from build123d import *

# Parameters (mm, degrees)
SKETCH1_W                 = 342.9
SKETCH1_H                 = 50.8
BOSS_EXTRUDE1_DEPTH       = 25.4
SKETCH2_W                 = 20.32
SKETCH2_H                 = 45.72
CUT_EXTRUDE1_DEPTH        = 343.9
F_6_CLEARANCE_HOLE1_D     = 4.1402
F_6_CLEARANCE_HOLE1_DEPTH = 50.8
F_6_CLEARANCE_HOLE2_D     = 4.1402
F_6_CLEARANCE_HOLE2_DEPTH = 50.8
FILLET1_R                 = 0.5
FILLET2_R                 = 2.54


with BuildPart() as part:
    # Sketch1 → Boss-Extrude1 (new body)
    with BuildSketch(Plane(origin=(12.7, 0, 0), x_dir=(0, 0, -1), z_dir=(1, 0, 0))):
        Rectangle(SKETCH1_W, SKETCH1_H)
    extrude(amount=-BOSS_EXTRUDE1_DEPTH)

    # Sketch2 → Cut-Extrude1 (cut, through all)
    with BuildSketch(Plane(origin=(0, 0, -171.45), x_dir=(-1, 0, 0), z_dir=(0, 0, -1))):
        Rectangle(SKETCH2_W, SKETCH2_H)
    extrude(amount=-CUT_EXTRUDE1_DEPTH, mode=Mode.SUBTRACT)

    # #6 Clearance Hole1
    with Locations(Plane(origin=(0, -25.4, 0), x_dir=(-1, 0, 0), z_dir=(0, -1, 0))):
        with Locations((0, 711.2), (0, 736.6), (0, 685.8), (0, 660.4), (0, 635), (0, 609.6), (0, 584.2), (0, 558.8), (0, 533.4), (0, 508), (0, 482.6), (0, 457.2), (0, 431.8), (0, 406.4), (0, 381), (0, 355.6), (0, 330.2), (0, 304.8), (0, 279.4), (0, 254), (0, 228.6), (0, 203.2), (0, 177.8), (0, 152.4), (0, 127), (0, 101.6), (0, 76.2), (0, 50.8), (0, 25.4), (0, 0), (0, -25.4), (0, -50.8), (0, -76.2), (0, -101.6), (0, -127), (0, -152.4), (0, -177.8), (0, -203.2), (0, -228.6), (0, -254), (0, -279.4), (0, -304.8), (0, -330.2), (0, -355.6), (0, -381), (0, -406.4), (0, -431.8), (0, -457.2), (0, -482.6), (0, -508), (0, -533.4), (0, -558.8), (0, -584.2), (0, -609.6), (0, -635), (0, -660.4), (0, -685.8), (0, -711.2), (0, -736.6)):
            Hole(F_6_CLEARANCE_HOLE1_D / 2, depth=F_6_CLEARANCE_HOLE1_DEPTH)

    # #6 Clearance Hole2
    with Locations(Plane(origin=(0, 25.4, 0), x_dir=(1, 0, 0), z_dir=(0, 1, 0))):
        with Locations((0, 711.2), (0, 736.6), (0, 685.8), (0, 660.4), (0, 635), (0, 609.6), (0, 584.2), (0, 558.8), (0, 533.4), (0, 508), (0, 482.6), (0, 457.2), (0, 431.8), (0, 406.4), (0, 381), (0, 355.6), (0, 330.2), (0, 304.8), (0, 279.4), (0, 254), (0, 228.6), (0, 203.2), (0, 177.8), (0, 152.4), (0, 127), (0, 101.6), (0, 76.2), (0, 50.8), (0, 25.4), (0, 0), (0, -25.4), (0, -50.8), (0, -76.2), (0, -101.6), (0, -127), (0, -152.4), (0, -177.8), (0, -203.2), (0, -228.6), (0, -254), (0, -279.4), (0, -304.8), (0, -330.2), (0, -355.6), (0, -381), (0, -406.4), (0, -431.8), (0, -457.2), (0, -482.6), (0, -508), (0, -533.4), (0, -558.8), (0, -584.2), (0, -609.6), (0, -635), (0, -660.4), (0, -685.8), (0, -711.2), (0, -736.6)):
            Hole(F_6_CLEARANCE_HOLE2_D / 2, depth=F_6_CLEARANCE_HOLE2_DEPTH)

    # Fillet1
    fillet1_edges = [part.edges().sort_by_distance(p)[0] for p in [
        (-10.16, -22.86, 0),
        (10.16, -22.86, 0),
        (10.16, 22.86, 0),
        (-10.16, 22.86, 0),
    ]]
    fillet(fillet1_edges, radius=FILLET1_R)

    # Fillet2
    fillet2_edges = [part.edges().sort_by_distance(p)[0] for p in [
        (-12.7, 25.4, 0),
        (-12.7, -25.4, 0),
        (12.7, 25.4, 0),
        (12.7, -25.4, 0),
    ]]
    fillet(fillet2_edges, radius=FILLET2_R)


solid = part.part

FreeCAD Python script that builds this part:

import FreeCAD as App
import Part
import Sketcher

V = App.Vector
Q = App.Units.Quantity


def edges_at(feature, points):
    """Names of the edges that pass closest to the given points."""
    edges = feature.Shape.Edges
    near = lambda p: min(range(len(edges)), key=lambda i: edges[i].distToShape(Part.Vertex(*p))[0])
    return sorted({f"Edge{near(p) + 1}" for p in points})


def add_polygon(sketch, points):
    """Adds a closed chain of lines whose ends are joined by coincident constraints."""
    first, n = sketch.GeometryCount, len(points)
    for a, b in zip(points, points[1:] + points[:1]):
        sketch.addGeometry(Part.LineSegment(App.Vector(*a, 0), App.Vector(*b, 0)), False)
    for i in range(n):
        sketch.addConstraint(Sketcher.Constraint("Coincident", first + i, 2, first + (i + 1) % n, 1))

doc = App.newDocument("Part")
body = doc.addObject("PartDesign::Body", "Body")

# Sketch on YZ plane
sketch1 = body.newObject("Sketcher::SketchObject", "Sketch")
sketch1.AttachmentSupport = (doc.getObject("YZ_Plane"), [""])
sketch1.MapMode = "FlatFace"
sketch1.AttachmentOffset = App.Placement(V(0, 0, 0.5 * 25.4), App.Rotation())
add_polygon(sketch1, [(25, 171), (-25, 171), (-25, -171), (25, -171)])  # lines 0-3
sketch1.addConstraint([
    Sketcher.Constraint("Horizontal", 0),
    Sketcher.Constraint("Vertical", 1),
    Sketcher.Constraint("Horizontal", 2),
    Sketcher.Constraint("Vertical", 3),
    Sketcher.Constraint("Symmetric", 0, 2, 2, 2, -1, 1),
    Sketcher.Constraint("DistanceX", 0, 2, 0, 1, Q("2 in")),
    Sketcher.Constraint("DistanceY", 1, 2, 1, 1, Q("13.5 in")),
])
pad1 = body.newObject("PartDesign::Pad", "Pad")
pad1.Profile = sketch1
pad1.Length = Q("1 in")
pad1.Reversed = True

# Sketch on XY plane
sketch2 = body.newObject("Sketcher::SketchObject", "Sketch001")
sketch2.AttachmentSupport = (doc.getObject("XY_Plane"), [""])
sketch2.MapMode = "FlatFace"
sketch2.AttachmentOffset = App.Placement(V(0, 0, -6.75 * 25.4), App.Rotation())
add_polygon(sketch2, [(10, 23), (10, -23), (-10, -23), (-10, 23)])  # lines 0-3
sketch2.addConstraint([
    Sketcher.Constraint("Vertical", 0),
    Sketcher.Constraint("Horizontal", 1),
    Sketcher.Constraint("Vertical", 2),
    Sketcher.Constraint("Horizontal", 3),
    Sketcher.Constraint("Symmetric", 0, 2, 2, 2, -1, 1),
    Sketcher.Constraint("DistanceX", 1, 2, 1, 1, Q("0.8 in")),
    Sketcher.Constraint("DistanceY", 0, 2, 0, 1, Q("1.8 in")),
])
pocket1 = body.newObject("PartDesign::Pocket", "Pocket")
pocket1.Profile = sketch2
pocket1.Type = "ThroughAll"
pocket1.Reversed = True

# Sketch on XZ plane
sketch3 = body.newObject("Sketcher::SketchObject", "Sketch002")
sketch3.AttachmentSupport = (doc.getObject("XZ_Plane"), [""])
sketch3.MapMode = "FlatFace"
sketch3.AttachmentOffset = App.Placement(V(0, 0, 1 * 25.4), App.Rotation())
sketch3.addGeometry([
    Part.Circle(V(0, -711.2, 0), V(0, 0, 1), 2.1),  # 0
    Part.Circle(V(0, -736.6, 0), V(0, 0, 1), 2.1),  # 1
    Part.Circle(V(0, -685.8, 0), V(0, 0, 1), 2.1),  # 2
    Part.Circle(V(0, -660.4, 0), V(0, 0, 1), 2.1),  # 3
    Part.Circle(V(0, -635, 0), V(0, 0, 1), 2.1),  # 4
    Part.Circle(V(0, -609.6, 0), V(0, 0, 1), 2.1),  # 5
    Part.Circle(V(0, -584.2, 0), V(0, 0, 1), 2.1),  # 6
    Part.Circle(V(0, -558.8, 0), V(0, 0, 1), 2.1),  # 7
    Part.Circle(V(0, -533.4, 0), V(0, 0, 1), 2.1),  # 8
    Part.Circle(V(0, -508, 0), V(0, 0, 1), 2.1),  # 9
    Part.Circle(V(0, -482.6, 0), V(0, 0, 1), 2.1),  # 10
    Part.Circle(V(0, -457.2, 0), V(0, 0, 1), 2.1),  # 11
    Part.Circle(V(0, -431.8, 0), V(0, 0, 1), 2.1),  # 12
    Part.Circle(V(0, -406.4, 0), V(0, 0, 1), 2.1),  # 13
    Part.Circle(V(0, -381, 0), V(0, 0, 1), 2.1),  # 14
    Part.Circle(V(0, -355.6, 0), V(0, 0, 1), 2.1),  # 15
    Part.Circle(V(0, -330.2, 0), V(0, 0, 1), 2.1),  # 16
    Part.Circle(V(0, -304.8, 0), V(0, 0, 1), 2.1),  # 17
    Part.Circle(V(0, -279.4, 0), V(0, 0, 1), 2.1),  # 18
    Part.Circle(V(0, -254, 0), V(0, 0, 1), 2.1),  # 19
    Part.Circle(V(0, -228.6, 0), V(0, 0, 1), 2.1),  # 20
    Part.Circle(V(0, -203.2, 0), V(0, 0, 1), 2.1),  # 21
    Part.Circle(V(0, -177.8, 0), V(0, 0, 1), 2.1),  # 22
    Part.Circle(V(0, -152.4, 0), V(0, 0, 1), 2.1),  # 23
    Part.Circle(V(0, -127, 0), V(0, 0, 1), 2.1),  # 24
    Part.Circle(V(0, -101.6, 0), V(0, 0, 1), 2.1),  # 25
    Part.Circle(V(0, -76.2, 0), V(0, 0, 1), 2.1),  # 26
    Part.Circle(V(0, -50.8, 0), V(0, 0, 1), 2.1),  # 27
    Part.Circle(V(0, -25.4, 0), V(0, 0, 1), 2.1),  # 28
    Part.Circle(V(0, 0, 0), V(0, 0, 1), 2.1),  # 29
    Part.Circle(V(0, 25.4, 0), V(0, 0, 1), 2.1),  # 30
    Part.Circle(V(0, 50.8, 0), V(0, 0, 1), 2.1),  # 31
    Part.Circle(V(0, 76.2, 0), V(0, 0, 1), 2.1),  # 32
    Part.Circle(V(0, 101.6, 0), V(0, 0, 1), 2.1),  # 33
    Part.Circle(V(0, 127, 0), V(0, 0, 1), 2.1),  # 34
    Part.Circle(V(0, 152.4, 0), V(0, 0, 1), 2.1),  # 35
    Part.Circle(V(0, 177.8, 0), V(0, 0, 1), 2.1),  # 36
    Part.Circle(V(0, 203.2, 0), V(0, 0, 1), 2.1),  # 37
    Part.Circle(V(0, 228.6, 0), V(0, 0, 1), 2.1),  # 38
    Part.Circle(V(0, 254, 0), V(0, 0, 1), 2.1),  # 39
    Part.Circle(V(0, 279.4, 0), V(0, 0, 1), 2.1),  # 40
    Part.Circle(V(0, 304.8, 0), V(0, 0, 1), 2.1),  # 41
    Part.Circle(V(0, 330.2, 0), V(0, 0, 1), 2.1),  # 42
    Part.Circle(V(0, 355.6, 0), V(0, 0, 1), 2.1),  # 43
    Part.Circle(V(0, 381, 0), V(0, 0, 1), 2.1),  # 44
    Part.Circle(V(0, 406.4, 0), V(0, 0, 1), 2.1),  # 45
    Part.Circle(V(0, 431.8, 0), V(0, 0, 1), 2.1),  # 46
    Part.Circle(V(0, 457.2, 0), V(0, 0, 1), 2.1),  # 47
    Part.Circle(V(0, 482.6, 0), V(0, 0, 1), 2.1),  # 48
    Part.Circle(V(0, 508, 0), V(0, 0, 1), 2.1),  # 49
    Part.Circle(V(0, 533.4, 0), V(0, 0, 1), 2.1),  # 50
    Part.Circle(V(0, 558.8, 0), V(0, 0, 1), 2.1),  # 51
    Part.Circle(V(0, 584.2, 0), V(0, 0, 1), 2.1),  # 52
    Part.Circle(V(0, 609.6, 0), V(0, 0, 1), 2.1),  # 53
    Part.Circle(V(0, 635, 0), V(0, 0, 1), 2.1),  # 54
    Part.Circle(V(0, 660.4, 0), V(0, 0, 1), 2.1),  # 55
    Part.Circle(V(0, 685.8, 0), V(0, 0, 1), 2.1),  # 56
    Part.Circle(V(0, 711.2, 0), V(0, 0, 1), 2.1),  # 57
    Part.Circle(V(0, 736.6, 0), V(0, 0, 1), 2.1),  # 58
], False)
sketch3.addConstraint([
    Sketcher.Constraint("Coincident", 29, 3, -1, 1),
    Sketcher.Constraint("Equal", 0, 1),
    Sketcher.Constraint("Equal", 1, 2),
    Sketcher.Constraint("Equal", 2, 3),
    Sketcher.Constraint("Equal", 3, 4),
    Sketcher.Constraint("Equal", 4, 5),
    Sketcher.Constraint("Equal", 5, 6),
    Sketcher.Constraint("Equal", 6, 7),
    Sketcher.Constraint("Equal", 7, 8),
    Sketcher.Constraint("Equal", 8, 9),
    Sketcher.Constraint("Equal", 9, 10),
    Sketcher.Constraint("Equal", 10, 11),
    Sketcher.Constraint("Equal", 11, 12),
    Sketcher.Constraint("Equal", 12, 13),
    Sketcher.Constraint("Equal", 13, 14),
    Sketcher.Constraint("Equal", 14, 15),
    Sketcher.Constraint("Equal", 15, 16),
    Sketcher.Constraint("Equal", 16, 17),
    Sketcher.Constraint("Equal", 17, 18),
    Sketcher.Constraint("Equal", 18, 19),
    Sketcher.Constraint("Equal", 19, 20),
    Sketcher.Constraint("Equal", 20, 21),
    Sketcher.Constraint("Equal", 21, 22),
    Sketcher.Constraint("Equal", 22, 23),
    Sketcher.Constraint("Equal", 23, 24),
    Sketcher.Constraint("Equal", 24, 25),
    Sketcher.Constraint("Equal", 25, 26),
    Sketcher.Constraint("Equal", 26, 27),
    Sketcher.Constraint("Equal", 27, 28),
    Sketcher.Constraint("Equal", 28, 29),
    Sketcher.Constraint("Equal", 29, 30),
    Sketcher.Constraint("Equal", 30, 31),
    Sketcher.Constraint("Equal", 31, 32),
    Sketcher.Constraint("Equal", 32, 33),
    Sketcher.Constraint("Equal", 33, 34),
    Sketcher.Constraint("Equal", 34, 35),
    Sketcher.Constraint("Equal", 35, 36),
    Sketcher.Constraint("Equal", 36, 37),
    Sketcher.Constraint("Equal", 37, 38),
    Sketcher.Constraint("Equal", 38, 39),
    Sketcher.Constraint("Equal", 39, 40),
    Sketcher.Constraint("Equal", 40, 41),
    Sketcher.Constraint("Equal", 41, 42),
    Sketcher.Constraint("Equal", 42, 43),
    Sketcher.Constraint("Equal", 43, 44),
    Sketcher.Constraint("Equal", 44, 45),
    Sketcher.Constraint("Equal", 45, 46),
    Sketcher.Constraint("Equal", 46, 47),
    Sketcher.Constraint("Equal", 47, 48),
    Sketcher.Constraint("Equal", 48, 49),
    Sketcher.Constraint("Equal", 49, 50),
    Sketcher.Constraint("Equal", 50, 51),
    Sketcher.Constraint("Equal", 51, 52),
    Sketcher.Constraint("Equal", 52, 53),
    Sketcher.Constraint("Equal", 53, 54),
    Sketcher.Constraint("Equal", 54, 55),
    Sketcher.Constraint("Equal", 55, 56),
    Sketcher.Constraint("Equal", 56, 57),
    Sketcher.Constraint("Equal", 57, 58),
    Sketcher.Constraint("Symmetric", 28, 3, 30, 3, -1, 1),
    Sketcher.Constraint("Symmetric", 27, 3, 31, 3, -1, 1),
    Sketcher.Constraint("Symmetric", 26, 3, 32, 3, -1, 1),
    Sketcher.Constraint("Symmetric", 25, 3, 33, 3, -1, 1),
    Sketcher.Constraint("Symmetric", 24, 3, 34, 3, -1, 1),
    Sketcher.Constraint("Symmetric", 23, 3, 35, 3, -1, 1),
    Sketcher.Constraint("Symmetric", 22, 3, 36, 3, -1, 1),
    Sketcher.Constraint("Symmetric", 21, 3, 37, 3, -1, 1),
    Sketcher.Constraint("Symmetric", 20, 3, 38, 3, -1, 1),
    Sketcher.Constraint("Symmetric", 19, 3, 39, 3, -1, 1),
    Sketcher.Constraint("Symmetric", 18, 3, 40, 3, -1, 1),
    Sketcher.Constraint("Symmetric", 17, 3, 41, 3, -1, 1),
    Sketcher.Constraint("Symmetric", 16, 3, 42, 3, -1, 1),
    Sketcher.Constraint("Symmetric", 15, 3, 43, 3, -1, 1),
    Sketcher.Constraint("Symmetric", 14, 3, 44, 3, -1, 1),
    Sketcher.Constraint("Symmetric", 13, 3, 45, 3, -1, 1),
    Sketcher.Constraint("Symmetric", 12, 3, 46, 3, -1, 1),
    Sketcher.Constraint("Symmetric", 11, 3, 47, 3, -1, 1),
    Sketcher.Constraint("Symmetric", 10, 3, 48, 3, -1, 1),
    Sketcher.Constraint("Symmetric", 9, 3, 49, 3, -1, 1),
    Sketcher.Constraint("Symmetric", 8, 3, 50, 3, -1, 1),
    Sketcher.Constraint("Symmetric", 7, 3, 51, 3, -1, 1),
    Sketcher.Constraint("Symmetric", 6, 3, 52, 3, -1, 1),
    Sketcher.Constraint("Symmetric", 5, 3, 53, 3, -1, 1),
    Sketcher.Constraint("Symmetric", 4, 3, 54, 3, -1, 1),
    Sketcher.Constraint("Symmetric", 3, 3, 55, 3, -1, 1),
    Sketcher.Constraint("Symmetric", 2, 3, 56, 3, -1, 1),
    Sketcher.Constraint("Symmetric", 0, 3, 57, 3, -1, 1),
    Sketcher.Constraint("Symmetric", 1, 3, 58, 3, -1, 1),
    Sketcher.Constraint("PointOnObject", 0, 3, -2),
    Sketcher.Constraint("PointOnObject", 1, 3, -2),
    Sketcher.Constraint("PointOnObject", 2, 3, -2),
    Sketcher.Constraint("PointOnObject", 3, 3, -2),
    Sketcher.Constraint("PointOnObject", 4, 3, -2),
    Sketcher.Constraint("PointOnObject", 5, 3, -2),
    Sketcher.Constraint("PointOnObject", 6, 3, -2),
    Sketcher.Constraint("PointOnObject", 7, 3, -2),
    Sketcher.Constraint("PointOnObject", 8, 3, -2),
    Sketcher.Constraint("PointOnObject", 9, 3, -2),
    Sketcher.Constraint("PointOnObject", 10, 3, -2),
    Sketcher.Constraint("PointOnObject", 11, 3, -2),
    Sketcher.Constraint("PointOnObject", 12, 3, -2),
    Sketcher.Constraint("PointOnObject", 13, 3, -2),
    Sketcher.Constraint("PointOnObject", 14, 3, -2),
    Sketcher.Constraint("PointOnObject", 15, 3, -2),
    Sketcher.Constraint("PointOnObject", 16, 3, -2),
    Sketcher.Constraint("PointOnObject", 17, 3, -2),
    Sketcher.Constraint("PointOnObject", 18, 3, -2),
    Sketcher.Constraint("PointOnObject", 19, 3, -2),
    Sketcher.Constraint("PointOnObject", 20, 3, -2),
    Sketcher.Constraint("PointOnObject", 21, 3, -2),
    Sketcher.Constraint("PointOnObject", 22, 3, -2),
    Sketcher.Constraint("PointOnObject", 23, 3, -2),
    Sketcher.Constraint("PointOnObject", 24, 3, -2),
    Sketcher.Constraint("PointOnObject", 25, 3, -2),
    Sketcher.Constraint("PointOnObject", 26, 3, -2),
    Sketcher.Constraint("PointOnObject", 27, 3, -2),
    Sketcher.Constraint("PointOnObject", 28, 3, -2),
    Sketcher.Constraint("Diameter", 0, Q("0.163 in")),
    Sketcher.Constraint("DistanceY", 0, 3, -1, 1, Q("28 in")),
    Sketcher.Constraint("DistanceY", 1, 3, -1, 1, Q("29 in")),
    Sketcher.Constraint("DistanceY", 2, 3, -1, 1, Q("27 in")),
    Sketcher.Constraint("DistanceY", 3, 3, -1, 1, Q("26 in")),
    Sketcher.Constraint("DistanceY", 4, 3, -1, 1, Q("25 in")),
    Sketcher.Constraint("DistanceY", 5, 3, -1, 1, Q("24 in")),
    Sketcher.Constraint("DistanceY", 6, 3, -1, 1, Q("23 in")),
    Sketcher.Constraint("DistanceY", 7, 3, -1, 1, Q("22 in")),
    Sketcher.Constraint("DistanceY", 8, 3, -1, 1, Q("21 in")),
    Sketcher.Constraint("DistanceY", 9, 3, -1, 1, Q("20 in")),
    Sketcher.Constraint("DistanceY", 10, 3, -1, 1, Q("19 in")),
    Sketcher.Constraint("DistanceY", 11, 3, -1, 1, Q("18 in")),
    Sketcher.Constraint("DistanceY", 12, 3, -1, 1, Q("17 in")),
    Sketcher.Constraint("DistanceY", 13, 3, -1, 1, Q("16 in")),
    Sketcher.Constraint("DistanceY", 14, 3, -1, 1, Q("15 in")),
    Sketcher.Constraint("DistanceY", 15, 3, -1, 1, Q("14 in")),
    Sketcher.Constraint("DistanceY", 16, 3, -1, 1, Q("13 in")),
    Sketcher.Constraint("DistanceY", 17, 3, -1, 1, Q("12 in")),
    Sketcher.Constraint("DistanceY", 18, 3, -1, 1, Q("11 in")),
    Sketcher.Constraint("DistanceY", 19, 3, -1, 1, Q("10 in")),
    Sketcher.Constraint("DistanceY", 20, 3, -1, 1, Q("9 in")),
    Sketcher.Constraint("DistanceY", 21, 3, -1, 1, Q("8 in")),
    Sketcher.Constraint("DistanceY", 22, 3, -1, 1, Q("7 in")),
    Sketcher.Constraint("DistanceY", 23, 3, -1, 1, Q("6 in")),
    Sketcher.Constraint("DistanceY", 24, 3, -1, 1, Q("5 in")),
    Sketcher.Constraint("DistanceY", 25, 3, -1, 1, Q("4 in")),
    Sketcher.Constraint("DistanceY", 26, 3, -1, 1, Q("3 in")),
    Sketcher.Constraint("DistanceY", 27, 3, -1, 1, Q("2 in")),
    Sketcher.Constraint("DistanceY", 28, 3, -1, 1, Q("1 in")),
])
doc.recompute()
hole = body.newObject("PartDesign::Hole", "Hole")
hole.Profile = sketch3
hole.ThreadType = "None"
hole.Diameter = Q("0.163 in")
hole.DepthType = "Dimension"
hole.Depth = Q("2 in")
hole.DrillPoint = "Flat"

# Sketch on XZ plane
sketch4 = body.newObject("Sketcher::SketchObject", "Sketch003")
sketch4.AttachmentSupport = (doc.getObject("XZ_Plane"), [""])
sketch4.MapMode = "FlatFace"
sketch4.AttachmentOffset = App.Placement(V(0, 0, -1 * 25.4), App.Rotation())
sketch4.addGeometry([
    Part.Circle(V(0, -711.2, 0), V(0, 0, 1), 2.1),  # 0
    Part.Circle(V(0, -736.6, 0), V(0, 0, 1), 2.1),  # 1
    Part.Circle(V(0, -685.8, 0), V(0, 0, 1), 2.1),  # 2
    Part.Circle(V(0, -660.4, 0), V(0, 0, 1), 2.1),  # 3
    Part.Circle(V(0, -635, 0), V(0, 0, 1), 2.1),  # 4
    Part.Circle(V(0, -609.6, 0), V(0, 0, 1), 2.1),  # 5
    Part.Circle(V(0, -584.2, 0), V(0, 0, 1), 2.1),  # 6
    Part.Circle(V(0, -558.8, 0), V(0, 0, 1), 2.1),  # 7
    Part.Circle(V(0, -533.4, 0), V(0, 0, 1), 2.1),  # 8
    Part.Circle(V(0, -508, 0), V(0, 0, 1), 2.1),  # 9
    Part.Circle(V(0, -482.6, 0), V(0, 0, 1), 2.1),  # 10
    Part.Circle(V(0, -457.2, 0), V(0, 0, 1), 2.1),  # 11
    Part.Circle(V(0, -431.8, 0), V(0, 0, 1), 2.1),  # 12
    Part.Circle(V(0, -406.4, 0), V(0, 0, 1), 2.1),  # 13
    Part.Circle(V(0, -381, 0), V(0, 0, 1), 2.1),  # 14
    Part.Circle(V(0, -355.6, 0), V(0, 0, 1), 2.1),  # 15
    Part.Circle(V(0, -330.2, 0), V(0, 0, 1), 2.1),  # 16
    Part.Circle(V(0, -304.8, 0), V(0, 0, 1), 2.1),  # 17
    Part.Circle(V(0, -279.4, 0), V(0, 0, 1), 2.1),  # 18
    Part.Circle(V(0, -254, 0), V(0, 0, 1), 2.1),  # 19
    Part.Circle(V(0, -228.6, 0), V(0, 0, 1), 2.1),  # 20
    Part.Circle(V(0, -203.2, 0), V(0, 0, 1), 2.1),  # 21
    Part.Circle(V(0, -177.8, 0), V(0, 0, 1), 2.1),  # 22
    Part.Circle(V(0, -152.4, 0), V(0, 0, 1), 2.1),  # 23
    Part.Circle(V(0, -127, 0), V(0, 0, 1), 2.1),  # 24
    Part.Circle(V(0, -101.6, 0), V(0, 0, 1), 2.1),  # 25
    Part.Circle(V(0, -76.2, 0), V(0, 0, 1), 2.1),  # 26
    Part.Circle(V(0, -50.8, 0), V(0, 0, 1), 2.1),  # 27
    Part.Circle(V(0, -25.4, 0), V(0, 0, 1), 2.1),  # 28
    Part.Circle(V(0, 0, 0), V(0, 0, 1), 2.1),  # 29
    Part.Circle(V(0, 25.4, 0), V(0, 0, 1), 2.1),  # 30
    Part.Circle(V(0, 50.8, 0), V(0, 0, 1), 2.1),  # 31
    Part.Circle(V(0, 76.2, 0), V(0, 0, 1), 2.1),  # 32
    Part.Circle(V(0, 101.6, 0), V(0, 0, 1), 2.1),  # 33
    Part.Circle(V(0, 127, 0), V(0, 0, 1), 2.1),  # 34
    Part.Circle(V(0, 152.4, 0), V(0, 0, 1), 2.1),  # 35
    Part.Circle(V(0, 177.8, 0), V(0, 0, 1), 2.1),  # 36
    Part.Circle(V(0, 203.2, 0), V(0, 0, 1), 2.1),  # 37
    Part.Circle(V(0, 228.6, 0), V(0, 0, 1), 2.1),  # 38
    Part.Circle(V(0, 254, 0), V(0, 0, 1), 2.1),  # 39
    Part.Circle(V(0, 279.4, 0), V(0, 0, 1), 2.1),  # 40
    Part.Circle(V(0, 304.8, 0), V(0, 0, 1), 2.1),  # 41
    Part.Circle(V(0, 330.2, 0), V(0, 0, 1), 2.1),  # 42
    Part.Circle(V(0, 355.6, 0), V(0, 0, 1), 2.1),  # 43
    Part.Circle(V(0, 381, 0), V(0, 0, 1), 2.1),  # 44
    Part.Circle(V(0, 406.4, 0), V(0, 0, 1), 2.1),  # 45
    Part.Circle(V(0, 431.8, 0), V(0, 0, 1), 2.1),  # 46
    Part.Circle(V(0, 457.2, 0), V(0, 0, 1), 2.1),  # 47
    Part.Circle(V(0, 482.6, 0), V(0, 0, 1), 2.1),  # 48
    Part.Circle(V(0, 508, 0), V(0, 0, 1), 2.1),  # 49
    Part.Circle(V(0, 533.4, 0), V(0, 0, 1), 2.1),  # 50
    Part.Circle(V(0, 558.8, 0), V(0, 0, 1), 2.1),  # 51
    Part.Circle(V(0, 584.2, 0), V(0, 0, 1), 2.1),  # 52
    Part.Circle(V(0, 609.6, 0), V(0, 0, 1), 2.1),  # 53
    Part.Circle(V(0, 635, 0), V(0, 0, 1), 2.1),  # 54
    Part.Circle(V(0, 660.4, 0), V(0, 0, 1), 2.1),  # 55
    Part.Circle(V(0, 685.8, 0), V(0, 0, 1), 2.1),  # 56
    Part.Circle(V(0, 711.2, 0), V(0, 0, 1), 2.1),  # 57
    Part.Circle(V(0, 736.6, 0), V(0, 0, 1), 2.1),  # 58
], False)
sketch4.addConstraint([
    Sketcher.Constraint("Coincident", 29, 3, -1, 1),
    Sketcher.Constraint("Equal", 0, 1),
    Sketcher.Constraint("Equal", 1, 2),
    Sketcher.Constraint("Equal", 2, 3),
    Sketcher.Constraint("Equal", 3, 4),
    Sketcher.Constraint("Equal", 4, 5),
    Sketcher.Constraint("Equal", 5, 6),
    Sketcher.Constraint("Equal", 6, 7),
    Sketcher.Constraint("Equal", 7, 8),
    Sketcher.Constraint("Equal", 8, 9),
    Sketcher.Constraint("Equal", 9, 10),
    Sketcher.Constraint("Equal", 10, 11),
    Sketcher.Constraint("Equal", 11, 12),
    Sketcher.Constraint("Equal", 12, 13),
    Sketcher.Constraint("Equal", 13, 14),
    Sketcher.Constraint("Equal", 14, 15),
    Sketcher.Constraint("Equal", 15, 16),
    Sketcher.Constraint("Equal", 16, 17),
    Sketcher.Constraint("Equal", 17, 18),
    Sketcher.Constraint("Equal", 18, 19),
    Sketcher.Constraint("Equal", 19, 20),
    Sketcher.Constraint("Equal", 20, 21),
    Sketcher.Constraint("Equal", 21, 22),
    Sketcher.Constraint("Equal", 22, 23),
    Sketcher.Constraint("Equal", 23, 24),
    Sketcher.Constraint("Equal", 24, 25),
    Sketcher.Constraint("Equal", 25, 26),
    Sketcher.Constraint("Equal", 26, 27),
    Sketcher.Constraint("Equal", 27, 28),
    Sketcher.Constraint("Equal", 28, 29),
    Sketcher.Constraint("Equal", 29, 30),
    Sketcher.Constraint("Equal", 30, 31),
    Sketcher.Constraint("Equal", 31, 32),
    Sketcher.Constraint("Equal", 32, 33),
    Sketcher.Constraint("Equal", 33, 34),
    Sketcher.Constraint("Equal", 34, 35),
    Sketcher.Constraint("Equal", 35, 36),
    Sketcher.Constraint("Equal", 36, 37),
    Sketcher.Constraint("Equal", 37, 38),
    Sketcher.Constraint("Equal", 38, 39),
    Sketcher.Constraint("Equal", 39, 40),
    Sketcher.Constraint("Equal", 40, 41),
    Sketcher.Constraint("Equal", 41, 42),
    Sketcher.Constraint("Equal", 42, 43),
    Sketcher.Constraint("Equal", 43, 44),
    Sketcher.Constraint("Equal", 44, 45),
    Sketcher.Constraint("Equal", 45, 46),
    Sketcher.Constraint("Equal", 46, 47),
    Sketcher.Constraint("Equal", 47, 48),
    Sketcher.Constraint("Equal", 48, 49),
    Sketcher.Constraint("Equal", 49, 50),
    Sketcher.Constraint("Equal", 50, 51),
    Sketcher.Constraint("Equal", 51, 52),
    Sketcher.Constraint("Equal", 52, 53),
    Sketcher.Constraint("Equal", 53, 54),
    Sketcher.Constraint("Equal", 54, 55),
    Sketcher.Constraint("Equal", 55, 56),
    Sketcher.Constraint("Equal", 56, 57),
    Sketcher.Constraint("Equal", 57, 58),
    Sketcher.Constraint("Symmetric", 28, 3, 30, 3, -1, 1),
    Sketcher.Constraint("Symmetric", 27, 3, 31, 3, -1, 1),
    Sketcher.Constraint("Symmetric", 26, 3, 32, 3, -1, 1),
    Sketcher.Constraint("Symmetric", 25, 3, 33, 3, -1, 1),
    Sketcher.Constraint("Symmetric", 24, 3, 34, 3, -1, 1),
    Sketcher.Constraint("Symmetric", 23, 3, 35, 3, -1, 1),
    Sketcher.Constraint("Symmetric", 22, 3, 36, 3, -1, 1),
    Sketcher.Constraint("Symmetric", 21, 3, 37, 3, -1, 1),
    Sketcher.Constraint("Symmetric", 20, 3, 38, 3, -1, 1),
    Sketcher.Constraint("Symmetric", 19, 3, 39, 3, -1, 1),
    Sketcher.Constraint("Symmetric", 18, 3, 40, 3, -1, 1),
    Sketcher.Constraint("Symmetric", 17, 3, 41, 3, -1, 1),
    Sketcher.Constraint("Symmetric", 16, 3, 42, 3, -1, 1),
    Sketcher.Constraint("Symmetric", 15, 3, 43, 3, -1, 1),
    Sketcher.Constraint("Symmetric", 14, 3, 44, 3, -1, 1),
    Sketcher.Constraint("Symmetric", 13, 3, 45, 3, -1, 1),
    Sketcher.Constraint("Symmetric", 12, 3, 46, 3, -1, 1),
    Sketcher.Constraint("Symmetric", 11, 3, 47, 3, -1, 1),
    Sketcher.Constraint("Symmetric", 10, 3, 48, 3, -1, 1),
    Sketcher.Constraint("Symmetric", 9, 3, 49, 3, -1, 1),
    Sketcher.Constraint("Symmetric", 8, 3, 50, 3, -1, 1),
    Sketcher.Constraint("Symmetric", 7, 3, 51, 3, -1, 1),
    Sketcher.Constraint("Symmetric", 6, 3, 52, 3, -1, 1),
    Sketcher.Constraint("Symmetric", 5, 3, 53, 3, -1, 1),
    Sketcher.Constraint("Symmetric", 4, 3, 54, 3, -1, 1),
    Sketcher.Constraint("Symmetric", 3, 3, 55, 3, -1, 1),
    Sketcher.Constraint("Symmetric", 2, 3, 56, 3, -1, 1),
    Sketcher.Constraint("Symmetric", 0, 3, 57, 3, -1, 1),
    Sketcher.Constraint("Symmetric", 1, 3, 58, 3, -1, 1),
    Sketcher.Constraint("PointOnObject", 0, 3, -2),
    Sketcher.Constraint("PointOnObject", 1, 3, -2),
    Sketcher.Constraint("PointOnObject", 2, 3, -2),
    Sketcher.Constraint("PointOnObject", 3, 3, -2),
    Sketcher.Constraint("PointOnObject", 4, 3, -2),
    Sketcher.Constraint("PointOnObject", 5, 3, -2),
    Sketcher.Constraint("PointOnObject", 6, 3, -2),
    Sketcher.Constraint("PointOnObject", 7, 3, -2),
    Sketcher.Constraint("PointOnObject", 8, 3, -2),
    Sketcher.Constraint("PointOnObject", 9, 3, -2),
    Sketcher.Constraint("PointOnObject", 10, 3, -2),
    Sketcher.Constraint("PointOnObject", 11, 3, -2),
    Sketcher.Constraint("PointOnObject", 12, 3, -2),
    Sketcher.Constraint("PointOnObject", 13, 3, -2),
    Sketcher.Constraint("PointOnObject", 14, 3, -2),
    Sketcher.Constraint("PointOnObject", 15, 3, -2),
    Sketcher.Constraint("PointOnObject", 16, 3, -2),
    Sketcher.Constraint("PointOnObject", 17, 3, -2),
    Sketcher.Constraint("PointOnObject", 18, 3, -2),
    Sketcher.Constraint("PointOnObject", 19, 3, -2),
    Sketcher.Constraint("PointOnObject", 20, 3, -2),
    Sketcher.Constraint("PointOnObject", 21, 3, -2),
    Sketcher.Constraint("PointOnObject", 22, 3, -2),
    Sketcher.Constraint("PointOnObject", 23, 3, -2),
    Sketcher.Constraint("PointOnObject", 24, 3, -2),
    Sketcher.Constraint("PointOnObject", 25, 3, -2),
    Sketcher.Constraint("PointOnObject", 26, 3, -2),
    Sketcher.Constraint("PointOnObject", 27, 3, -2),
    Sketcher.Constraint("PointOnObject", 28, 3, -2),
    Sketcher.Constraint("Diameter", 0, Q("0.163 in")),
    Sketcher.Constraint("DistanceY", 0, 3, -1, 1, Q("28 in")),
    Sketcher.Constraint("DistanceY", 1, 3, -1, 1, Q("29 in")),
    Sketcher.Constraint("DistanceY", 2, 3, -1, 1, Q("27 in")),
    Sketcher.Constraint("DistanceY", 3, 3, -1, 1, Q("26 in")),
    Sketcher.Constraint("DistanceY", 4, 3, -1, 1, Q("25 in")),
    Sketcher.Constraint("DistanceY", 5, 3, -1, 1, Q("24 in")),
    Sketcher.Constraint("DistanceY", 6, 3, -1, 1, Q("23 in")),
    Sketcher.Constraint("DistanceY", 7, 3, -1, 1, Q("22 in")),
    Sketcher.Constraint("DistanceY", 8, 3, -1, 1, Q("21 in")),
    Sketcher.Constraint("DistanceY", 9, 3, -1, 1, Q("20 in")),
    Sketcher.Constraint("DistanceY", 10, 3, -1, 1, Q("19 in")),
    Sketcher.Constraint("DistanceY", 11, 3, -1, 1, Q("18 in")),
    Sketcher.Constraint("DistanceY", 12, 3, -1, 1, Q("17 in")),
    Sketcher.Constraint("DistanceY", 13, 3, -1, 1, Q("16 in")),
    Sketcher.Constraint("DistanceY", 14, 3, -1, 1, Q("15 in")),
    Sketcher.Constraint("DistanceY", 15, 3, -1, 1, Q("14 in")),
    Sketcher.Constraint("DistanceY", 16, 3, -1, 1, Q("13 in")),
    Sketcher.Constraint("DistanceY", 17, 3, -1, 1, Q("12 in")),
    Sketcher.Constraint("DistanceY", 18, 3, -1, 1, Q("11 in")),
    Sketcher.Constraint("DistanceY", 19, 3, -1, 1, Q("10 in")),
    Sketcher.Constraint("DistanceY", 20, 3, -1, 1, Q("9 in")),
    Sketcher.Constraint("DistanceY", 21, 3, -1, 1, Q("8 in")),
    Sketcher.Constraint("DistanceY", 22, 3, -1, 1, Q("7 in")),
    Sketcher.Constraint("DistanceY", 23, 3, -1, 1, Q("6 in")),
    Sketcher.Constraint("DistanceY", 24, 3, -1, 1, Q("5 in")),
    Sketcher.Constraint("DistanceY", 25, 3, -1, 1, Q("4 in")),
    Sketcher.Constraint("DistanceY", 26, 3, -1, 1, Q("3 in")),
    Sketcher.Constraint("DistanceY", 27, 3, -1, 1, Q("2 in")),
    Sketcher.Constraint("DistanceY", 28, 3, -1, 1, Q("1 in")),
])
doc.recompute()
hole2 = body.newObject("PartDesign::Hole", "Hole001")
hole2.Profile = sketch4
hole2.ThreadType = "None"
hole2.Diameter = Q("0.163 in")
hole2.DepthType = "Dimension"
hole2.Depth = Q("2 in")
hole2.DrillPoint = "Flat"
hole2.Reversed = True
doc.recompute()

fillet = body.newObject("PartDesign::Fillet", "Fillet")
fillet.Base = (hole2, edges_at(hole2, [
    (-10.16, -22.86, 0),
    (10.16, -22.86, 0),
    (10.16, 22.86, 0),
    (-10.16, 22.86, 0),
]))
fillet.Radius = 0.5
doc.recompute()

fillet2 = body.newObject("PartDesign::Fillet", "Fillet001")
fillet2.Base = (fillet, edges_at(fillet, [
    (-12.7, 25.4, 0),
    (-12.7, -25.4, 0),
    (12.7, 25.4, 0),
    (12.7, -25.4, 0),
]))
fillet2.Radius = Q("0.1 in")

doc.recompute()
